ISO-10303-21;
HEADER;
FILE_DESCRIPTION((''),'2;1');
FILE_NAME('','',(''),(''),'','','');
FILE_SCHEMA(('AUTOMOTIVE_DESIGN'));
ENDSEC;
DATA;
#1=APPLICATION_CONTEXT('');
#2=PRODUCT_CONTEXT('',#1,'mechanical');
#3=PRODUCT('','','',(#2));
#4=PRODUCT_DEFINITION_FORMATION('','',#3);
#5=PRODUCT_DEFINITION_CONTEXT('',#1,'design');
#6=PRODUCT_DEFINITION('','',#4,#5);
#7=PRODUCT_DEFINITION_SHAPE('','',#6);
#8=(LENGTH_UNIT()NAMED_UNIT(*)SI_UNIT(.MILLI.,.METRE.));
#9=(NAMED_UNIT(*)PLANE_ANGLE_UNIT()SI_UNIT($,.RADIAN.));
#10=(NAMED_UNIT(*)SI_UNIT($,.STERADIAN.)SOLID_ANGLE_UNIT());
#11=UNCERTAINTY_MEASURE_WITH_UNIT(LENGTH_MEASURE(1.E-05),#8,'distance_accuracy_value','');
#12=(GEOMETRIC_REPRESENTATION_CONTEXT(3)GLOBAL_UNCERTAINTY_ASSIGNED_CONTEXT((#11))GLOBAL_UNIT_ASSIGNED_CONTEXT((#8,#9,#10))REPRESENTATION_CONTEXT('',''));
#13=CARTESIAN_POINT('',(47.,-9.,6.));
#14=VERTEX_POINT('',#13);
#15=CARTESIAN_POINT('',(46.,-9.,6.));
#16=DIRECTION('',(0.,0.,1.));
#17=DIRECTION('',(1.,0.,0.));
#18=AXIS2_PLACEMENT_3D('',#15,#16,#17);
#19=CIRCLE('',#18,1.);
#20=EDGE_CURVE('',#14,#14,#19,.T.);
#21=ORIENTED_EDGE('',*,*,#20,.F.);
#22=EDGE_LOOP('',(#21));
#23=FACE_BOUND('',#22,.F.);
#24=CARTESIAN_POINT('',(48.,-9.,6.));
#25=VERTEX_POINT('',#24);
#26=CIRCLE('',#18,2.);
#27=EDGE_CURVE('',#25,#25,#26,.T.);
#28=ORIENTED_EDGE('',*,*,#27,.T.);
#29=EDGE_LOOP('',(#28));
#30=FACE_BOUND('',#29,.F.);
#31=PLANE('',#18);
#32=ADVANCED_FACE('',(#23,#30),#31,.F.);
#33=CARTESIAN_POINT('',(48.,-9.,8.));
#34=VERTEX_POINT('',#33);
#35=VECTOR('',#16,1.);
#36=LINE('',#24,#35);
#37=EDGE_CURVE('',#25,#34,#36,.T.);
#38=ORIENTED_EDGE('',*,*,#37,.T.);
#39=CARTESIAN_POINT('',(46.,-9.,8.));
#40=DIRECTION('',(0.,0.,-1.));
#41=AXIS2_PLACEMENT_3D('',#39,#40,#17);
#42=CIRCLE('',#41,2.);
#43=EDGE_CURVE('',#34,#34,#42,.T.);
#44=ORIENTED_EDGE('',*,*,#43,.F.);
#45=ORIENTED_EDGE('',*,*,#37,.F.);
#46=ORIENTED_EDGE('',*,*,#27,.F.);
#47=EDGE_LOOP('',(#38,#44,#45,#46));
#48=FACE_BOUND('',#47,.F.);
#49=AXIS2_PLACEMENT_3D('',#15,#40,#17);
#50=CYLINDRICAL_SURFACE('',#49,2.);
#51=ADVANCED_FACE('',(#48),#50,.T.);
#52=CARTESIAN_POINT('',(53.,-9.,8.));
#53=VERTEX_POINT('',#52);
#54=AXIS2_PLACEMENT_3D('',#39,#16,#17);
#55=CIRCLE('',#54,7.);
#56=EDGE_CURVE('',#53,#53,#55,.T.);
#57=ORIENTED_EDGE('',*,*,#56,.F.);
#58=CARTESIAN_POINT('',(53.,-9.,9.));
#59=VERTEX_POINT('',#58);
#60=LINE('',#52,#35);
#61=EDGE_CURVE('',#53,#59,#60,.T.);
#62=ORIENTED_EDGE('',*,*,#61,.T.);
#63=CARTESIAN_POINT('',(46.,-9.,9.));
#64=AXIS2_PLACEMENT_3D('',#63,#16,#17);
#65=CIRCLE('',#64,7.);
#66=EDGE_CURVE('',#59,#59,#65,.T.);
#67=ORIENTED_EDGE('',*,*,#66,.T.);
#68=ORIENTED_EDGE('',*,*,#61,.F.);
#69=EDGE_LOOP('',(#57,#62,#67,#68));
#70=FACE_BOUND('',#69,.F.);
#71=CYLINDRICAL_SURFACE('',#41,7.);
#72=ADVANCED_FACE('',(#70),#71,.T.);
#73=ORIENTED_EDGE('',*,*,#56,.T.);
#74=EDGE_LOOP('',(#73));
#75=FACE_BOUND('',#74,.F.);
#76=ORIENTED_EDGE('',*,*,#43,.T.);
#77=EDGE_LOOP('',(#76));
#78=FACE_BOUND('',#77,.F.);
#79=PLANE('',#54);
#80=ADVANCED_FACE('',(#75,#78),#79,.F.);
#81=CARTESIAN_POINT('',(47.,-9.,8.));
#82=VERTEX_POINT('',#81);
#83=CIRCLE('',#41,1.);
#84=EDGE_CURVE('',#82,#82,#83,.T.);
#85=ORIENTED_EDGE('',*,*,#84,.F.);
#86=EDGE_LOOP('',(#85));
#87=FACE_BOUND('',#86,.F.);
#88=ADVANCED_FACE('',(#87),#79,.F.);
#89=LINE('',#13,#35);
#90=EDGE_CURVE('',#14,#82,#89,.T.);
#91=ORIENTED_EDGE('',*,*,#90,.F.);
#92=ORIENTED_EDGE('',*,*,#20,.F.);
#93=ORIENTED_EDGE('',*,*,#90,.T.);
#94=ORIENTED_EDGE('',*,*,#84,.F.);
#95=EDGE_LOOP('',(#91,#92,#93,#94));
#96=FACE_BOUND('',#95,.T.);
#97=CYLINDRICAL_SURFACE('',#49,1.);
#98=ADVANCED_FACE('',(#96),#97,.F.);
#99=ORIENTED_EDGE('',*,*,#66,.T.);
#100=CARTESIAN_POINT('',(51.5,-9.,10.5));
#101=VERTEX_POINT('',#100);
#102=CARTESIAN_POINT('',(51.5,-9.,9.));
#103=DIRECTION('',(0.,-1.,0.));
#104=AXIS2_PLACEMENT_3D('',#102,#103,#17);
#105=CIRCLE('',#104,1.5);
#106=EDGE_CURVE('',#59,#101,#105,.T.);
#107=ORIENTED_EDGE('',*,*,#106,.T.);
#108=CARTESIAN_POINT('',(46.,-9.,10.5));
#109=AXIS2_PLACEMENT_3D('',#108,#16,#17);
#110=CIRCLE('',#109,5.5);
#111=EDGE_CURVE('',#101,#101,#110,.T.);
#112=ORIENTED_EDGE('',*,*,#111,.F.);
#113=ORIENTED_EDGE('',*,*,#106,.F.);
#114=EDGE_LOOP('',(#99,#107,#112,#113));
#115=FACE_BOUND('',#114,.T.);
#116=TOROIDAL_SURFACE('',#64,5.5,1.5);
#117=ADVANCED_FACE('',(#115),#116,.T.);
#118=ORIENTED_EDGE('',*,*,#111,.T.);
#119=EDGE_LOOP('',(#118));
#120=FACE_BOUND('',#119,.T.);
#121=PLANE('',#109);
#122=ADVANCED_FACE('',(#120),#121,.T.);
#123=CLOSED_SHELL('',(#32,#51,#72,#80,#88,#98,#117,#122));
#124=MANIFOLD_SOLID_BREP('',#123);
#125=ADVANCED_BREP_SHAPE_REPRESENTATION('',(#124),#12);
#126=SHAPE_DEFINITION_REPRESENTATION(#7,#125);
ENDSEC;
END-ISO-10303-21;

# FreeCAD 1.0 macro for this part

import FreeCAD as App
import Part
import Sketcher
from FreeCAD import Vector
Q = App.Units.Quantity


def edges_at(feature, points):
    """Names of the edges that pass closest to the given points."""
    edges = feature.Shape.Edges
    near = lambda p: min(range(len(edges)), key=lambda i: edges[i].distToShape(Part.Vertex(*p))[0])
    return sorted({f"Edge{near(p) + 1}" for p in points})

doc = App.newDocument("Part")
body = doc.addObject("PartDesign::Body", "Body")

sketch1 = body.newObject("Sketcher::SketchObject", "Sketch")
sketch1.AttachmentSupport = (doc.getObject("XY_Plane"), [""])
sketch1.MapMode = "FlatFace"
sketch1.AttachmentOffset = App.Placement(Vector(0, 0, 6), App.Rotation())
sketch1.addGeometry(Part.Circle(Vector(46, -9, 0), Vector(0, 0, 1), 1), False)
sketch1.addConstraint(Sketcher.Constraint("Diameter", 0, Q("2 mm")))
sketch1.addConstraint(Sketcher.Constraint("DistanceX", -1, 1, 0, 3, Q("46 mm")))
sketch1.addConstraint(Sketcher.Constraint("DistanceY", 0, 3, -1, 1, Q("9 mm")))
pad1 = body.newObject("PartDesign::Pad", "Pad")
pad1.Profile = sketch1
pad1.Length = 3.5
body2 = doc.addObject("PartDesign::Body", "Body001")

sketch2 = body2.newObject("Sketcher::SketchObject", "Sketch001")
sketch2.AttachmentSupport = (doc.getObject("XY_Plane001"), [""])
sketch2.MapMode = "FlatFace"
sketch2.AttachmentOffset = App.Placement(Vector(0, 0, 6), App.Rotation())
sketch2.addGeometry(Part.Circle(Vector(46, -9, 0), Vector(0, 0, 1), 2), False)
sketch2.addConstraint(Sketcher.Constraint("Diameter", 0, Q("4 mm")))
sketch2.addConstraint(Sketcher.Constraint("DistanceX", -1, 1, 0, 3, Q("46 mm")))
sketch2.addConstraint(Sketcher.Constraint("DistanceY", 0, 3, -1, 1, Q("9 mm")))
pad2 = body2.newObject("PartDesign::Pad", "Pad001")
pad2.Profile = sketch2
pad2.Length = 3.5
doc.recompute()

boolean = body2.newObject("PartDesign::Boolean", "Boolean")
boolean.Type = "Cut"
boolean.addObjects([body])
body3 = doc.addObject("PartDesign::Body", "Body002")

sketch3 = body3.newObject("Sketcher::SketchObject", "Sketch002")
sketch3.AttachmentSupport = (doc.getObject("XY_Plane002"), [""])
sketch3.MapMode = "FlatFace"
sketch3.AttachmentOffset = App.Placement(Vector(0, 0, 8), App.Rotation())
sketch3.addGeometry(Part.Circle(Vector(46, -9, 0), Vector(0, 0, 1), 7), False)
sketch3.addConstraint(Sketcher.Constraint("Diameter", 0, Q("14 mm")))
sketch3.addConstraint(Sketcher.Constraint("DistanceX", -1, 1, 0, 3, Q("46 mm")))
sketch3.addConstraint(Sketcher.Constraint("DistanceY", 0, 3, -1, 1, Q("9 mm")))
pad3 = body3.newObject("PartDesign::Pad", "Pad002")
pad3.Profile = sketch3
pad3.Length = 2.5
doc.recompute()

fillet = body3.newObject("PartDesign::Fillet", "Fillet")
fillet.Base = (pad3, edges_at(pad3, [(39, -9, 10.5)]))
fillet.Radius = 1.5
doc.recompute()

boolean2 = body3.newObject("PartDesign::Boolean", "Boolean001")
boolean2.Type = "Fuse"
boolean2.addObjects([body2])

doc.recompute()
